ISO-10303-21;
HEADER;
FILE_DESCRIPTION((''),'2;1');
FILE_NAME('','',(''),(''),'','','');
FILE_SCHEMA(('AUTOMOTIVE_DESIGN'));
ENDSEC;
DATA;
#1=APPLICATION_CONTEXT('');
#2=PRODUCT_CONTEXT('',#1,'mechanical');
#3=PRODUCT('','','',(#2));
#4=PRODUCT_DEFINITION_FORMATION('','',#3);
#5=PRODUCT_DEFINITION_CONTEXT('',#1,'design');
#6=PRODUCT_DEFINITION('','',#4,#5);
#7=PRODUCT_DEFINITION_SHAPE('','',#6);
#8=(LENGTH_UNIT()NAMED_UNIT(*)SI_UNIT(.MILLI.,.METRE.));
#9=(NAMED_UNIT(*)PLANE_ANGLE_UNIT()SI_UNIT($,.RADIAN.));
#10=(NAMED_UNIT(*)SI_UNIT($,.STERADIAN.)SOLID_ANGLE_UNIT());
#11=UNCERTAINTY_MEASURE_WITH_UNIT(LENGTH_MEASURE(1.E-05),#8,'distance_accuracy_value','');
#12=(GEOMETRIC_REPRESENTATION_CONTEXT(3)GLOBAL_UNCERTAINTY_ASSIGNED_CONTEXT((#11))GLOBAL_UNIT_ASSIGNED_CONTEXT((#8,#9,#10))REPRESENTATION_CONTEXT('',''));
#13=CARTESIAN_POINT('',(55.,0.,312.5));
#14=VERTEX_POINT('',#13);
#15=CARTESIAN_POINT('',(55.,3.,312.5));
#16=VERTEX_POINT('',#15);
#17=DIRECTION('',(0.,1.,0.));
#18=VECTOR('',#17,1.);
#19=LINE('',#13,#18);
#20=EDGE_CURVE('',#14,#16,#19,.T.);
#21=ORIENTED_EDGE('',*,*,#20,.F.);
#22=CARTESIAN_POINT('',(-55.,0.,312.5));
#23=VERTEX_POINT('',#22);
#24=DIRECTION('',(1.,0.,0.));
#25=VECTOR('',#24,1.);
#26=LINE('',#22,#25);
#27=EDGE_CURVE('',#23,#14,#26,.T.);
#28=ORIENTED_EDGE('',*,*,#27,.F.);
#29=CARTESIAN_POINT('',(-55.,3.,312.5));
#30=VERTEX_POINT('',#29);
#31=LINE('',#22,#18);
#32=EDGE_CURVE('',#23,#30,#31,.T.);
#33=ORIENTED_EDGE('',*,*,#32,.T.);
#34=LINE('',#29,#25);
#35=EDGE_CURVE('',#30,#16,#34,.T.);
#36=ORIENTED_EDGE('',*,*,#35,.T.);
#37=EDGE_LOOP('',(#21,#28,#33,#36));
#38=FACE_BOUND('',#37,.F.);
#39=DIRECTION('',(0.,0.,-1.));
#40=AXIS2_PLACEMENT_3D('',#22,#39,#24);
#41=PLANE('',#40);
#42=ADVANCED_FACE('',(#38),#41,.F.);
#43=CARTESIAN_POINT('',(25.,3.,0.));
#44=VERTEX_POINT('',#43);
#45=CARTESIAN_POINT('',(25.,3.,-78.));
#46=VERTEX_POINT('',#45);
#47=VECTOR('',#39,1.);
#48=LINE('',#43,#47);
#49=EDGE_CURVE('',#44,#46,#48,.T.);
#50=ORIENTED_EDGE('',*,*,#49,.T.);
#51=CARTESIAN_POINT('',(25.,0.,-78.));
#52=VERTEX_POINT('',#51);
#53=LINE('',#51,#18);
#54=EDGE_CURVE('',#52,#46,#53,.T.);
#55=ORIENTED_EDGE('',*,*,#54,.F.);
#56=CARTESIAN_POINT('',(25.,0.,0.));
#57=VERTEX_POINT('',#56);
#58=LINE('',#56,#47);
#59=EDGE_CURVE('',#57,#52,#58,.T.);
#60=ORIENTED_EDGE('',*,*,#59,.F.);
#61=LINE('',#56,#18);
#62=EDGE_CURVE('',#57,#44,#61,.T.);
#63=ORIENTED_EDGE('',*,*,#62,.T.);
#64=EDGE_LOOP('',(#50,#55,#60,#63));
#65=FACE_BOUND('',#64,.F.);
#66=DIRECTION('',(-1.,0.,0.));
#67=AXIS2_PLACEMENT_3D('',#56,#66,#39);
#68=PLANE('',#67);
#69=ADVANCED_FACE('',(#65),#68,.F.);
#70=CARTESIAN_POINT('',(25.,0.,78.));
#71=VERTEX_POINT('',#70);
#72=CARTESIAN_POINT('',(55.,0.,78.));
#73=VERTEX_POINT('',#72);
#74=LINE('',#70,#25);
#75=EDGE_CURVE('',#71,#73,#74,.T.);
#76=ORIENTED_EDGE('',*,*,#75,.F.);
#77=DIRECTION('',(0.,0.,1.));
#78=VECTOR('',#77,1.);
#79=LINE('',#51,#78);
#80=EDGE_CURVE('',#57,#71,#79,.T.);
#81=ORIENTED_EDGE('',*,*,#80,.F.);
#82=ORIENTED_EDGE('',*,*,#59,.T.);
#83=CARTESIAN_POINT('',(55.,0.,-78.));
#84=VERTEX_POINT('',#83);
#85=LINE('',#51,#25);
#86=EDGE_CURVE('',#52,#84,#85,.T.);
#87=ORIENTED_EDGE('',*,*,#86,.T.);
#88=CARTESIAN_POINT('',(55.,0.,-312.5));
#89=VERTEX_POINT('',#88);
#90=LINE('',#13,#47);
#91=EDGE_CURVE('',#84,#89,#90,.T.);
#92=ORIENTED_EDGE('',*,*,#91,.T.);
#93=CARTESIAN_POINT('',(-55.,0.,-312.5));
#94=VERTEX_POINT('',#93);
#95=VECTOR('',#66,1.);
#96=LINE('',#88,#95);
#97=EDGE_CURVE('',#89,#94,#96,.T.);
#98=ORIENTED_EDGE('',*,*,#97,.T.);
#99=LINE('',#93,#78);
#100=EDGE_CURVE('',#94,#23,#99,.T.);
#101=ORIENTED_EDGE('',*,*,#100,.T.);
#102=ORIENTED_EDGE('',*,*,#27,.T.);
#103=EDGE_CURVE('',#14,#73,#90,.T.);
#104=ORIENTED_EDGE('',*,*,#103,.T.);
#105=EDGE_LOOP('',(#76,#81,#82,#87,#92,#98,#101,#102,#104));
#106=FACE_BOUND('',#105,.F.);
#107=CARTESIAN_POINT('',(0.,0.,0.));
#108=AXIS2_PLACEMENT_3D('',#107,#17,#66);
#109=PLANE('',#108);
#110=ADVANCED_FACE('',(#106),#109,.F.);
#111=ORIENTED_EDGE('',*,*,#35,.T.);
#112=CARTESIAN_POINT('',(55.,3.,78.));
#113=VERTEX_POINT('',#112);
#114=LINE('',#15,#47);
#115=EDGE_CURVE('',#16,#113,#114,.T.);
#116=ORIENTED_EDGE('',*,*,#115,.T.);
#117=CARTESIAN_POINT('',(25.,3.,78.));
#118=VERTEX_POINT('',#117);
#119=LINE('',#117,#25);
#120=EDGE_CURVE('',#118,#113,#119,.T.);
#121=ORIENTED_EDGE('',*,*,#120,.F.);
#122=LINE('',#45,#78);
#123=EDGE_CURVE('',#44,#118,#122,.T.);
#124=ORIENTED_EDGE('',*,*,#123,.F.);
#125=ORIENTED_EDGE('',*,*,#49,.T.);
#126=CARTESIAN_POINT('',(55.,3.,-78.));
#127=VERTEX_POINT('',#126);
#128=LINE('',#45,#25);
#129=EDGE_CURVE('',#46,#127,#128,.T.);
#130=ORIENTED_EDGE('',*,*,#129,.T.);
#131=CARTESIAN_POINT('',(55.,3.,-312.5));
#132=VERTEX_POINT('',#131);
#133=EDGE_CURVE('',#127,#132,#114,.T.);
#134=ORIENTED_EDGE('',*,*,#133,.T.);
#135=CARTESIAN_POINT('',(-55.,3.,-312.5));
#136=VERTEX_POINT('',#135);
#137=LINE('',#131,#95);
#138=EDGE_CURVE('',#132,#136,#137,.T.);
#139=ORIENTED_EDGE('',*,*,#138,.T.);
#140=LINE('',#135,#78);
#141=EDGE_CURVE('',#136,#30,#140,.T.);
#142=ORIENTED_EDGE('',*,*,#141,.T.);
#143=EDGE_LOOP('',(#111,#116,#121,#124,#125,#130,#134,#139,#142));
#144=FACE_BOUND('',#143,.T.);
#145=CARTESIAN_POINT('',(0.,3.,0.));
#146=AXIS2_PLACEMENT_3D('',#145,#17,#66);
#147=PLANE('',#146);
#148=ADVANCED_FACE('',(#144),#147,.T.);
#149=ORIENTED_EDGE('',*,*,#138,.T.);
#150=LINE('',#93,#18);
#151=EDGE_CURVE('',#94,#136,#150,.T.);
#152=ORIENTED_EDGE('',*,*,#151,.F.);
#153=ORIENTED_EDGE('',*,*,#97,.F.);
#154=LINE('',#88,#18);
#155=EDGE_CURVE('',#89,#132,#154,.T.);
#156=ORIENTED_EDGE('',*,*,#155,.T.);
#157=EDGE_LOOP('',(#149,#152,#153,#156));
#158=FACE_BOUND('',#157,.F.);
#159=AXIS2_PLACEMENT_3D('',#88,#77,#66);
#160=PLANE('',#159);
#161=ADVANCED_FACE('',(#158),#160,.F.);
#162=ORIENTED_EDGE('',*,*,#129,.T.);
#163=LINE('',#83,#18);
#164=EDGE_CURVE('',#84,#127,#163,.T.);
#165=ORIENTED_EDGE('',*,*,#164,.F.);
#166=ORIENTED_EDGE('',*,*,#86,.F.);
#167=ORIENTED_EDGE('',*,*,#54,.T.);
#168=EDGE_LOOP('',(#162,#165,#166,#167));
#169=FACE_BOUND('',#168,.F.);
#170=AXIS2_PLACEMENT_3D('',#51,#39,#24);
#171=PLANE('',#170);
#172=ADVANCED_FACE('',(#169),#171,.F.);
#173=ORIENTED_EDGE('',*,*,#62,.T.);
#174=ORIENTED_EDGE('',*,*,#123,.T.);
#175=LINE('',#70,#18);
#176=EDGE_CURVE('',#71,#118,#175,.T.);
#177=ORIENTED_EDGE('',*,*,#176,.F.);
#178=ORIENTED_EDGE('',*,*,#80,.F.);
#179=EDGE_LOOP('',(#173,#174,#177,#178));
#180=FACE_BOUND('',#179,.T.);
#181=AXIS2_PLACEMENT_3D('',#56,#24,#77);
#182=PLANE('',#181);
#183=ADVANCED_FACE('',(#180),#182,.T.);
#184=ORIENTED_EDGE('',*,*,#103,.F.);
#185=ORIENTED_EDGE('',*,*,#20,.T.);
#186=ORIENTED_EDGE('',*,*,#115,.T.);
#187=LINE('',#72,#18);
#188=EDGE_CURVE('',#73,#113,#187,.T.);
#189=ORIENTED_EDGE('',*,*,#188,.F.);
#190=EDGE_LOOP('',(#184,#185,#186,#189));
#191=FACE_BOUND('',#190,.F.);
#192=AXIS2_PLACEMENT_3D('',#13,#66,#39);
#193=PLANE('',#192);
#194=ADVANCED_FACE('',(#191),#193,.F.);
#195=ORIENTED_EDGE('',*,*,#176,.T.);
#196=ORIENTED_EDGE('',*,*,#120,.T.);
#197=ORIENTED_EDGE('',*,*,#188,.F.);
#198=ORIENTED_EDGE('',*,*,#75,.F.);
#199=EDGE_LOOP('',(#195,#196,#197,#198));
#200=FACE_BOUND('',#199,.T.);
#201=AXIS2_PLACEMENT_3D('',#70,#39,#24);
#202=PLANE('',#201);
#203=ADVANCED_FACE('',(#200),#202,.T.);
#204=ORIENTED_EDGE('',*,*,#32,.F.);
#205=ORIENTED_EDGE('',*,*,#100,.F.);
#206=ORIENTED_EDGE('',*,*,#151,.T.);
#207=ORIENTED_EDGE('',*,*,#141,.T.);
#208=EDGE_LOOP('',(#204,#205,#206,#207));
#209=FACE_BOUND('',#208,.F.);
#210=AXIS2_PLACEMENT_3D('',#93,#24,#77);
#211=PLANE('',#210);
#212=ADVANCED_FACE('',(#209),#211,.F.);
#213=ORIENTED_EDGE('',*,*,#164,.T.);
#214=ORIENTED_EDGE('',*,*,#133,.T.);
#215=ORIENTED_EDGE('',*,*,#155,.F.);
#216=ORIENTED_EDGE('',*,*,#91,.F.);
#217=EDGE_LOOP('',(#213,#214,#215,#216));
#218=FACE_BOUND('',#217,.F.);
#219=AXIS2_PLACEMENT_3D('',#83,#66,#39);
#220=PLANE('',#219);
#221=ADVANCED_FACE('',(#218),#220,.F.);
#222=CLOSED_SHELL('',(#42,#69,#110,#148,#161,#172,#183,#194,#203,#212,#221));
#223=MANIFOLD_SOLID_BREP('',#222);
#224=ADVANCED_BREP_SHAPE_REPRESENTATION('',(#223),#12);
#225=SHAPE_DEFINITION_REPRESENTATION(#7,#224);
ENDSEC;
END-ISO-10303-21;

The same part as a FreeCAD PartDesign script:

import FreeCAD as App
import Part
import Sketcher

V = App.Vector
Q = App.Units.Quantity

doc = App.newDocument("Part")
params = doc.addObject("Spreadsheet::Sheet", "Params")
for row, (alias, value) in enumerate([
    ("sketch1_width", "110 mm"),
    ("sketch1_width2", "30 mm"),
    ("sketch1_height", "625 mm"),
    ("sketch1_height2", "156 mm"),
    ("pad1_length", "3 mm"),
], start=1):
    params.set(f"A{row}", alias)
    params.set(f"B{row}", "=" + value)
    params.setAlias(f"B{row}", alias)

body = doc.addObject("PartDesign::Body", "Body")

sketch1 = body.newObject("Sketcher::SketchObject", "Sketch")
sketch1.AttachmentSupport = (doc.getObject("XZ_Plane"), [""])
sketch1.MapMode = "FlatFace"
sketch1.addGeometry([
    Part.LineSegment(V(-55, -312.5, 0), V(-55, 312.5, 0)),
    Part.LineSegment(V(-55, 312.5, 0), V(55, 312.5, 0)),
    Part.LineSegment(V(55, 312.5, 0), V(55, 78, 0)),
    Part.LineSegment(V(55, 78, 0), V(25, 78, 0)),
    Part.LineSegment(V(25, 78, 0), V(25, -78, 0)),
    Part.LineSegment(V(25, -78, 0), V(55, -78, 0)),
    Part.LineSegment(V(55, -78, 0), V(55, -312.5, 0)),
    Part.LineSegment(V(55, -312.5, 0), V(-55, -312.5, 0)),
], False)
sketch1.addConstraint([
    Sketcher.Constraint("Coincident", 0, 2, 1, 1),
    Sketcher.Constraint("Coincident", 1, 2, 2, 1),
    Sketcher.Constraint("Coincident", 2, 2, 3, 1),
    Sketcher.Constraint("Coincident", 3, 2, 4, 1),
    Sketcher.Constraint("Coincident", 4, 2, 5, 1),
    Sketcher.Constraint("Coincident", 5, 2, 6, 1),
    Sketcher.Constraint("Coincident", 6, 2, 7, 1),
    Sketcher.Constraint("Coincident", 7, 2, 0, 1),
    Sketcher.Constraint("Vertical", 0),
    Sketcher.Constraint("Horizontal", 1),
    Sketcher.Constraint("Vertical", 2),
    Sketcher.Constraint("Horizontal", 3),
    Sketcher.Constraint("Vertical", 4),
    Sketcher.Constraint("Horizontal", 5),
    Sketcher.Constraint("Vertical", 6),
    Sketcher.Constraint("Horizontal", 7),
    Sketcher.Constraint("Symmetric", 0, 2, 6, 2, -1, 1),
    Sketcher.Constraint("Symmetric", 2, 2, 5, 2, -1),
    Sketcher.Constraint("DistanceX", 1, 1, 1, 2, Q("110 mm")),
    Sketcher.Constraint("DistanceX", 3, 2, 3, 1, Q("30 mm")),
    Sketcher.Constraint("DistanceY", 0, 1, 0, 2, Q("625 mm")),
    Sketcher.Constraint("DistanceY", 4, 2, 4, 1, Q("156 mm")),
])
sketch1.setExpression("Constraints[18]", "Params.sketch1_width")
sketch1.setExpression("Constraints[19]", "Params.sketch1_width2")
sketch1.setExpression("Constraints[20]", "Params.sketch1_height")
sketch1.setExpression("Constraints[21]", "Params.sketch1_height2")
pad1 = body.newObject("PartDesign::Pad", "Pad")
pad1.Profile = sketch1
pad1.setExpression("Length", "Params.pad1_length")
pad1.Reversed = True

doc.recompute()
